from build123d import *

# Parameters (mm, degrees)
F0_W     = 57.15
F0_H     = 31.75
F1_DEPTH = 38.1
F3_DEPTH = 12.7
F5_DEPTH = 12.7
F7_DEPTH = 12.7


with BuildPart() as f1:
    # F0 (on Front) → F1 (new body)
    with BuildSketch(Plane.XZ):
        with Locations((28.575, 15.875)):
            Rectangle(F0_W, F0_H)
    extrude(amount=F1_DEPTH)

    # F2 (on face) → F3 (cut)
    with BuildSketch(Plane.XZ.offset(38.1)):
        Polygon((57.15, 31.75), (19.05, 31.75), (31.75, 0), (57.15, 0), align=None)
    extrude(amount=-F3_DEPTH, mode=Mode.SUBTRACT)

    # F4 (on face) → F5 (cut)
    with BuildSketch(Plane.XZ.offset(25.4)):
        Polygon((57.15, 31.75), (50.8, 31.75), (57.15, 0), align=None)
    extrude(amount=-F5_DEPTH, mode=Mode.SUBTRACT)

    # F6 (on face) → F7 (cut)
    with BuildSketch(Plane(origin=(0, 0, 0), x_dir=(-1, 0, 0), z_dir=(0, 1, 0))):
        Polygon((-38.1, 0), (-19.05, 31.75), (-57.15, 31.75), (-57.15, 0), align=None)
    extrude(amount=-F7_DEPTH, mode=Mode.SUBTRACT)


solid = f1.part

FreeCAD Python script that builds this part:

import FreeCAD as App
import Part
import Sketcher

V = App.Vector
Q = App.Units.Quantity


def add_polygon(sketch, points):
    """Adds a closed chain of lines whose ends are joined by coincident constraints."""
    first, n = sketch.GeometryCount, len(points)
    for a, b in zip(points, points[1:] + points[:1]):
        sketch.addGeometry(Part.LineSegment(App.Vector(*a, 0), App.Vector(*b, 0)), False)
    for i in range(n):
        sketch.addConstraint(Sketcher.Constraint("Coincident", first + i, 2, first + (i + 1) % n, 1))

doc = App.newDocument("Part")
params = doc.addObject("Spreadsheet::Sheet", "Params")
for row, (alias, value) in enumerate([
    ("sketch1_width", "2.25 in"),
    ("sketch1_height", "1.25 in"),
    ("pad1_length", "1.5 in"),
    ("sketch2_width", "1 in"),
    ("sketch2_width2", "1.5 in"),
    ("sketch2_height", "1.25 in"),
    ("pocket1_length", "0.5 in"),
    ("sketch3_width", "0.25 in"),
    ("sketch3_height", "1.25 in"),
    ("pocket2_length", "0.5 in"),
    ("sketch4_width", "1.5 in"),
    ("sketch4_width2", "0.75 in"),
    ("sketch4_height", "1.25 in"),
    ("pocket3_length", "0.5 in"),
], start=1):
    params.set(f"A{row}", alias)
    params.set(f"B{row}", "=" + value)
    params.setAlias(f"B{row}", alias)

body = doc.addObject("PartDesign::Body", "Body")

# Sketch on XZ plane
sketch1 = body.newObject("Sketcher::SketchObject", "Sketch")
sketch1.AttachmentSupport = (doc.getObject("XZ_Plane"), [""])
sketch1.MapMode = "FlatFace"
add_polygon(sketch1, [(0, 31.75), (0, 0), (57.15, 0), (57.15, 31.75)])  # lines 0-3
sketch1.addConstraint([
    Sketcher.Constraint("Vertical", 0),
    Sketcher.Constraint("Horizontal", 1),
    Sketcher.Constraint("Vertical", 2),
    Sketcher.Constraint("Horizontal", 3),
    Sketcher.Constraint("Coincident", 0, 2, -1, 1),
    Sketcher.Constraint("DistanceX", 1, 1, 1, 2, Q("2.25 in")),
    Sketcher.Constraint("DistanceY", 0, 2, 0, 1, Q("1.25 in")),
])
sketch1.setExpression("Constraints[9]", "Params.sketch1_width")
sketch1.setExpression("Constraints[10]", "Params.sketch1_height")
pad1 = body.newObject("PartDesign::Pad", "Pad")
pad1.Profile = sketch1
pad1.setExpression("Length", "Params.pad1_length")

# Sketch on XZ plane
sketch2 = body.newObject("Sketcher::SketchObject", "Sketch001")
sketch2.AttachmentSupport = (doc.getObject("XZ_Plane"), [""])
sketch2.MapMode = "FlatFace"
sketch2.AttachmentOffset = App.Placement(V(0, 0, 1.5 * 25.4), App.Rotation())
add_polygon(sketch2, [(57.15, 31.75), (19.05, 31.75), (31.75, 0), (57.15, 0)])  # lines 0-3
sketch2.addConstraint([
    Sketcher.Constraint("Horizontal", 0),
    Sketcher.Constraint("Horizontal", 2),
    Sketcher.Constraint("Vertical", 3),
    Sketcher.Constraint("PointOnObject", 1, 2, -1),
    Sketcher.Constraint("DistanceX", 2, 1, 2, 2, Q("1 in")),
    Sketcher.Constraint("DistanceX", 0, 2, 0, 1, Q("1.5 in")),
    Sketcher.Constraint("DistanceY", 3, 1, 3, 2, Q("1.25 in")),
    Sketcher.Constraint("DistanceX", -1, 1, 0, 2, Q("0.75 in")),
])
sketch2.setExpression("Constraints[8]", "Params.sketch2_width")
sketch2.setExpression("Constraints[9]", "Params.sketch2_width2")
sketch2.setExpression("Constraints[10]", "Params.sketch2_height")
pocket1 = body.newObject("PartDesign::Pocket", "Pocket")
pocket1.Profile = sketch2
pocket1.setExpression("Length", "Params.pocket1_length")

# Sketch on XZ plane
sketch3 = body.newObject("Sketcher::SketchObject", "Sketch002")
sketch3.AttachmentSupport = (doc.getObject("XZ_Plane"), [""])
sketch3.MapMode = "FlatFace"
sketch3.AttachmentOffset = App.Placement(V(0, 0, 1 * 25.4), App.Rotation())
add_polygon(sketch3, [(57.15, 31.75), (50.8, 31.75), (57.15, 0)])  # lines 0-2
sketch3.addConstraint([
    Sketcher.Constraint("Horizontal", 0),
    Sketcher.Constraint("Vertical", 2),
    Sketcher.Constraint("PointOnObject", 1, 2, -1),
    Sketcher.Constraint("DistanceX", -1, 1, 0, 2, Q("2 in")),
    Sketcher.Constraint("DistanceX", 0, 2, 0, 1, Q("0.25 in")),
    Sketcher.Constraint("DistanceY", 2, 1, 2, 2, Q("1.25 in")),
])
sketch3.setExpression("Constraints[7]", "Params.sketch3_width")
sketch3.setExpression("Constraints[8]", "Params.sketch3_height")
pocket2 = body.newObject("PartDesign::Pocket", "Pocket001")
pocket2.Profile = sketch3
pocket2.setExpression("Length", "Params.pocket2_length")

# Sketch on XZ plane
sketch4 = body.newObject("Sketcher::SketchObject", "Sketch003")
sketch4.AttachmentSupport = (doc.getObject("XZ_Plane"), [""])
sketch4.MapMode = "FlatFace"
add_polygon(sketch4, [(38.1, 0), (19.05, 31.75), (57.15, 31.75), (57.15, 0)])  # lines 0-3
sketch4.addConstraint([
    Sketcher.Constraint("Horizontal", 1),
    Sketcher.Constraint("Vertical", 2),
    Sketcher.Constraint("Horizontal", 3),
    Sketcher.Constraint("PointOnObject", 2, 2, -1),
    Sketcher.Constraint("DistanceX", 1, 1, 1, 2, Q("1.5 in")),
    Sketcher.Constraint("DistanceX", 3, 2, 3, 1, Q("0.75 in")),
    Sketcher.Constraint("DistanceY", 2, 2, 2, 1, Q("1.25 in")),
    Sketcher.Constraint("DistanceX", -1, 1, 3, 2, Q("1.5 in")),
])
sketch4.setExpression("Constraints[8]", "Params.sketch4_width")
sketch4.setExpression("Constraints[9]", "Params.sketch4_width2")
sketch4.setExpression("Constraints[10]", "Params.sketch4_height")
pocket3 = body.newObject("PartDesign::Pocket", "Pocket002")
pocket3.Profile = sketch4
pocket3.setExpression("Length", "Params.pocket3_length")
pocket3.Reversed = True

doc.recompute()
